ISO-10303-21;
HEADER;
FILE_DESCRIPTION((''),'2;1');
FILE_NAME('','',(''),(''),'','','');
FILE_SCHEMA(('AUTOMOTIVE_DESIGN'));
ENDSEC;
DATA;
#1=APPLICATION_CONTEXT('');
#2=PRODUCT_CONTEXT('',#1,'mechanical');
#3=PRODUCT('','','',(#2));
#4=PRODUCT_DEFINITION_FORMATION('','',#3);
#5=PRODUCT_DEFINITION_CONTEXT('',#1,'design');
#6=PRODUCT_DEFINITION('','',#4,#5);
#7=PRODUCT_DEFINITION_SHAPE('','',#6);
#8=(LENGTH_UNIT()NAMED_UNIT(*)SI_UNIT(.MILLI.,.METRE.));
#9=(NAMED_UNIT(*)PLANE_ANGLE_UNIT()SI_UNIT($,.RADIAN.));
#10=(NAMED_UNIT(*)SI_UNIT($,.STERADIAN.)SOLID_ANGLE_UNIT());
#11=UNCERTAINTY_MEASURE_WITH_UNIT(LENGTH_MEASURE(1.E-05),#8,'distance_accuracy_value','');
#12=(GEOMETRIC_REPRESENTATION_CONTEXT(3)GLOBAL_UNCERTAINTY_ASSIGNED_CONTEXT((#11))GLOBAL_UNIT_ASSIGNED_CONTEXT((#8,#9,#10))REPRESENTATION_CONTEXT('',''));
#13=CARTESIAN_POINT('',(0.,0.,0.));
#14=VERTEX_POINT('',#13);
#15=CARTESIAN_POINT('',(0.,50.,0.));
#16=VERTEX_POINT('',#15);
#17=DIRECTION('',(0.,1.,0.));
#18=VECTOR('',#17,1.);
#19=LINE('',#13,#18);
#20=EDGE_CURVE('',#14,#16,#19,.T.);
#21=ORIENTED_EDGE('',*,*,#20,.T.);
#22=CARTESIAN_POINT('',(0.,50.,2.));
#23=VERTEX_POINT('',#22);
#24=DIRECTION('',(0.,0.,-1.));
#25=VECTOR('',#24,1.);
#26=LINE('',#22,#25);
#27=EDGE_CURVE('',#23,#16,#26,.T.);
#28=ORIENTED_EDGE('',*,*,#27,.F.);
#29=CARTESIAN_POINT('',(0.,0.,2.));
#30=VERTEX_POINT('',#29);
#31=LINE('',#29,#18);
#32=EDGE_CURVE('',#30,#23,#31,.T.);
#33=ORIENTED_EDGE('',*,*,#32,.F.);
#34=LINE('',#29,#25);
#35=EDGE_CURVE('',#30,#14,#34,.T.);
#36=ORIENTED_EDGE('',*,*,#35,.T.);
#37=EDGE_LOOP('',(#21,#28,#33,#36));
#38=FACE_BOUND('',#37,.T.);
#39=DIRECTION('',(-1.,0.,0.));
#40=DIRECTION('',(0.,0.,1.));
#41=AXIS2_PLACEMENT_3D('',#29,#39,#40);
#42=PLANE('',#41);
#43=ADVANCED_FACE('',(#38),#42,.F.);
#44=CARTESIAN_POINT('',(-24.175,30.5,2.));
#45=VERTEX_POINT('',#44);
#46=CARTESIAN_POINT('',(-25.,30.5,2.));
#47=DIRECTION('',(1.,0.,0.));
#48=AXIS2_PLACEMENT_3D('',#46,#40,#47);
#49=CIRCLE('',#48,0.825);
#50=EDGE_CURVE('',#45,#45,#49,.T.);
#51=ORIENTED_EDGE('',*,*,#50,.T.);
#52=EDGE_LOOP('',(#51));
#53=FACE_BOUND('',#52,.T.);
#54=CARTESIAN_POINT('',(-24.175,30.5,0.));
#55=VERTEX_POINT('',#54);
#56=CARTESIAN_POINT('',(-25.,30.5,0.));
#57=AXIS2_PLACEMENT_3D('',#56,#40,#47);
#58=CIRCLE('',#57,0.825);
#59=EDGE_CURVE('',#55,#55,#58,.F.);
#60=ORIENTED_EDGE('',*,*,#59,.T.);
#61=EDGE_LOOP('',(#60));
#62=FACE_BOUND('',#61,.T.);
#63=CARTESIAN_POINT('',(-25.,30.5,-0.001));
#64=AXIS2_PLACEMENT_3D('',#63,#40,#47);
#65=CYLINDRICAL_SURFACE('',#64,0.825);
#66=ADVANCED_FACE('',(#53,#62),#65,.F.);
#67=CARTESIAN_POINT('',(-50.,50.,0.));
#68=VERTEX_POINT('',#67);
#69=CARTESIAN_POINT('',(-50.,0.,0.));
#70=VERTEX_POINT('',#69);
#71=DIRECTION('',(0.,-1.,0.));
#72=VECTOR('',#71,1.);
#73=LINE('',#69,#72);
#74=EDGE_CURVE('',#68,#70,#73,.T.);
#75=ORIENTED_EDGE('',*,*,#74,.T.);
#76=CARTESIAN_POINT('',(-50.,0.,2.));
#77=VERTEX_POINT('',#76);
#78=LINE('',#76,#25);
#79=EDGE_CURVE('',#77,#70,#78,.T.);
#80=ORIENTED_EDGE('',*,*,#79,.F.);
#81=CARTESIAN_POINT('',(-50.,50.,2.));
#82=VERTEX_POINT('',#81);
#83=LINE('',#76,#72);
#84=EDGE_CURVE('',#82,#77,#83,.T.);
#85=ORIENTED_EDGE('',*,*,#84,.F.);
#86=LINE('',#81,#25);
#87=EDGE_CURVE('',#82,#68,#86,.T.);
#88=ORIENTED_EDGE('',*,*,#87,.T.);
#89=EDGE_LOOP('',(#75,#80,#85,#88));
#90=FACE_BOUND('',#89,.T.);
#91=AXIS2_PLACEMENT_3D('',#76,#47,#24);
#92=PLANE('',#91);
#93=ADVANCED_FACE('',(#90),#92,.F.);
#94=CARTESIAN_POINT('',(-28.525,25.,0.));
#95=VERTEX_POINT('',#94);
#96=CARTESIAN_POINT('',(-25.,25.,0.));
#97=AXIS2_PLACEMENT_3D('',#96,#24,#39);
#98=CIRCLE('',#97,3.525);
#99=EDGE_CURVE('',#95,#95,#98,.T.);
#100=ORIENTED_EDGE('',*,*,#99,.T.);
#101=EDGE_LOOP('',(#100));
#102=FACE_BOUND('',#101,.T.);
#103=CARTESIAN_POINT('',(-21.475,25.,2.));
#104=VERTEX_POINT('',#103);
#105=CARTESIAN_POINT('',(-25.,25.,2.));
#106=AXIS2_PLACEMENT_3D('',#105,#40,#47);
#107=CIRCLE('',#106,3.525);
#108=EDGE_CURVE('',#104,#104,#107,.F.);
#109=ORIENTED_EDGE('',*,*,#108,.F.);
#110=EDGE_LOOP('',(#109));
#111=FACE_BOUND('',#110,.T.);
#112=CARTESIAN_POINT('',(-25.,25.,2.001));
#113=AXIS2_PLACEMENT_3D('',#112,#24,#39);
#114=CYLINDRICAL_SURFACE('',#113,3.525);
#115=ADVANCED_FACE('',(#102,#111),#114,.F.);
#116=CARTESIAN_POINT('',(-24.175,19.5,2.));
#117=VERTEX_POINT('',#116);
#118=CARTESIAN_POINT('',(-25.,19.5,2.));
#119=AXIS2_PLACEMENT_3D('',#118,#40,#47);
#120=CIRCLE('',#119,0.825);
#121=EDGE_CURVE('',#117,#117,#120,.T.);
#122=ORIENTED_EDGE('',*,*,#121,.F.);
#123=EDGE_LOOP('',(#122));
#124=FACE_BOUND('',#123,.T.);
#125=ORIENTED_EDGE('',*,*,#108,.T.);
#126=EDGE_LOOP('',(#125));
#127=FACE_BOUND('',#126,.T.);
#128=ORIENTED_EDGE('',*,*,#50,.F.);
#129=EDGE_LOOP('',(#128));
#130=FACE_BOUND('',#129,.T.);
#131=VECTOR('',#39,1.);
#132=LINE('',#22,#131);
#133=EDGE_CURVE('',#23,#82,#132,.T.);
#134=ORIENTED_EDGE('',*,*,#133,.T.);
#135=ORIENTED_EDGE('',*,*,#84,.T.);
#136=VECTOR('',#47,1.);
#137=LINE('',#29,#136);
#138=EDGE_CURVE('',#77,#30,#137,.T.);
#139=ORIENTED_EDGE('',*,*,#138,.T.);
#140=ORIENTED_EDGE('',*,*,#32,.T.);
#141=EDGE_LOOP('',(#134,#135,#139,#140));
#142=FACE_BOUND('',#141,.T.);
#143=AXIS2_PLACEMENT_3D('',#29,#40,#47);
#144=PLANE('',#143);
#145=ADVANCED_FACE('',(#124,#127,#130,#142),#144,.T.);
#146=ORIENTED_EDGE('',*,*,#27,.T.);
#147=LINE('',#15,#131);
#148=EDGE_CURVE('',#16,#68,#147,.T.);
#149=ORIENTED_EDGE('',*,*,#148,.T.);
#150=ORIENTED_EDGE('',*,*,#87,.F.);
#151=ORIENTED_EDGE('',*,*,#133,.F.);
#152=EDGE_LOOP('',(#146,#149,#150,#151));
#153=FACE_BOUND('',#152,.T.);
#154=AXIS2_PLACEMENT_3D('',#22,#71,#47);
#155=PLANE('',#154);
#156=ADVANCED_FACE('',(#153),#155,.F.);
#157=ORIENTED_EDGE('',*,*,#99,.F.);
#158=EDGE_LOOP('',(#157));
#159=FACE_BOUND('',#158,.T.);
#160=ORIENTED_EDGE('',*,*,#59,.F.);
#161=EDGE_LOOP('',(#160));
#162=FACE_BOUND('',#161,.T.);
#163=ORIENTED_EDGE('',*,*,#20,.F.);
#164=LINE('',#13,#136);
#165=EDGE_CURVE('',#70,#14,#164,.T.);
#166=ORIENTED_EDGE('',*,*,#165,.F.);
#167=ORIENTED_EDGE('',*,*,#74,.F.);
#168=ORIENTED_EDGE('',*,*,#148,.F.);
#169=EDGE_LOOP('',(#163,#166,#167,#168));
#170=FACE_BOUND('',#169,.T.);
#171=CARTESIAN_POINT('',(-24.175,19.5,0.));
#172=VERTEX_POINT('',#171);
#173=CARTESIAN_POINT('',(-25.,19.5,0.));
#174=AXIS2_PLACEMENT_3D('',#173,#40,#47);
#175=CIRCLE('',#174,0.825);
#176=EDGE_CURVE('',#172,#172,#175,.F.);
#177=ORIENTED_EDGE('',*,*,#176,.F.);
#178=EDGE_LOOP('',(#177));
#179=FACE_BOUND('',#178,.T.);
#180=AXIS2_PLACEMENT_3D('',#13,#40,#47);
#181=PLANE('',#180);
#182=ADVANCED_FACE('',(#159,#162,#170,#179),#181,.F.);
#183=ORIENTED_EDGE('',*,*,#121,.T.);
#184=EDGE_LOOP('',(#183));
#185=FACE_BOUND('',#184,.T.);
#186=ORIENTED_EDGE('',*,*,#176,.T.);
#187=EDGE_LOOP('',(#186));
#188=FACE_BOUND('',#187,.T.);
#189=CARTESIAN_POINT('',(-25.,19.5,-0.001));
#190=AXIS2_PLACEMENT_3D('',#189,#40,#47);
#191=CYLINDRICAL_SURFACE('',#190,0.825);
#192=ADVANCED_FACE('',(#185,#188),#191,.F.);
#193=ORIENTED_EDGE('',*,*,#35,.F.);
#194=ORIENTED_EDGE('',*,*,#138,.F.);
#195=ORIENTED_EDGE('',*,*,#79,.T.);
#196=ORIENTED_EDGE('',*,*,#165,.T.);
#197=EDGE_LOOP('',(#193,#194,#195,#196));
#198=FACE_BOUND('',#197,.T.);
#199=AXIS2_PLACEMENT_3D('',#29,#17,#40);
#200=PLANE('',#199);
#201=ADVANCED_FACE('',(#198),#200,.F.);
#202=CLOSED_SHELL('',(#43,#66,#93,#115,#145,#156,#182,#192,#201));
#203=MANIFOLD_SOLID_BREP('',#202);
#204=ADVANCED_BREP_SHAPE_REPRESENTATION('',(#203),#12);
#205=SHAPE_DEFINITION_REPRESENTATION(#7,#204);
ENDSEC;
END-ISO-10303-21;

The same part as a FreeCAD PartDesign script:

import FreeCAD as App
import Part
import Sketcher

V = App.Vector


def add_polygon(sketch, points):
    """Adds a closed chain of lines whose ends are joined by coincident constraints."""
    first, n = sketch.GeometryCount, len(points)
    for a, b in zip(points, points[1:] + points[:1]):
        sketch.addGeometry(Part.LineSegment(App.Vector(*a, 0), App.Vector(*b, 0)), False)
    for i in range(n):
        sketch.addConstraint(Sketcher.Constraint("Coincident", first + i, 2, first + (i + 1) % n, 1))

doc = App.newDocument("Part")
body = doc.addObject("PartDesign::Body", "Body")

sketch1 = body.newObject("Sketcher::SketchObject", "Sketch")
sketch1.AttachmentSupport = (doc.getObject("XY_Plane"), [""])
sketch1.MapMode = "FlatFace"
add_polygon(sketch1, [(-50, 50), (-50, 0), (0, 0), (0, 50)])
sketch1.addConstraint(Sketcher.Constraint("Vertical", 0))
sketch1.addConstraint(Sketcher.Constraint("Horizontal", 1))
sketch1.addConstraint(Sketcher.Constraint("Vertical", 2))
sketch1.addConstraint(Sketcher.Constraint("Horizontal", 3))
sketch1.addConstraint(Sketcher.Constraint("Coincident", 1, 2, -1, 1))
sketch1.addConstraint(Sketcher.Constraint("Equal", 3, 0))
sketch1.addConstraint(Sketcher.Constraint("DistanceX", 1, 1, 1, 2, 50.0))
pad1 = body.newObject("PartDesign::Pad", "Pad")
pad1.Profile = sketch1
pad1.Length = 2

sketch2 = body.newObject("Sketcher::SketchObject", "Sketch001")
sketch2.AttachmentSupport = (doc.getObject("XY_Plane"), [""])
sketch2.MapMode = "FlatFace"
sketch2.AttachmentOffset = App.Placement(V(0, 0, 2), App.Rotation())
sketch2.addGeometry(Part.Circle(V(-25, 30.5, 0), V(0, 0, 1), 0.8), False)
sketch2.addConstraint(Sketcher.Constraint("Diameter", 0, 1.65))
sketch2.addConstraint(Sketcher.Constraint("DistanceX", 0, 3, -1, 1, 25.0))
sketch2.addConstraint(Sketcher.Constraint("DistanceY", -1, 1, 0, 3, 30.5))
pocket1 = body.newObject("PartDesign::Pocket", "Pocket")
pocket1.Profile = sketch2
pocket1.Type = "UpToFirst"

sketch3 = body.newObject("Sketcher::SketchObject", "Sketch002")
sketch3.AttachmentSupport = (doc.getObject("XY_Plane"), [""])
sketch3.MapMode = "FlatFace"
sketch3.AttachmentOffset = App.Placement(V(0, 0, 2), App.Rotation())
sketch3.addGeometry(Part.Circle(V(-25, 19.5, 0), V(0, 0, 1), 0.8), False)
sketch3.addConstraint(Sketcher.Constraint("Diameter", 0, 1.65))
sketch3.addConstraint(Sketcher.Constraint("DistanceX", 0, 3, -1, 1, 25.0))
sketch3.addConstraint(Sketcher.Constraint("DistanceY", -1, 1, 0, 3, 19.5))
pocket2 = body.newObject("PartDesign::Pocket", "Pocket001")
pocket2.Profile = sketch3
pocket2.Type = "UpToFirst"

sketch4 = body.newObject("Sketcher::SketchObject", "Sketch003")
sketch4.AttachmentSupport = (doc.getObject("XY_Plane"), [""])
sketch4.MapMode = "FlatFace"
sketch4.addGeometry(Part.Circle(V(-25, 25, 0), V(0, 0, 1), 3.5), False)
sketch4.addConstraint(Sketcher.Constraint("Diameter", 0, 7.05))
sketch4.addConstraint(Sketcher.Constraint("DistanceX", 0, 3, -1, 1, 25.0))
sketch4.addConstraint(Sketcher.Constraint("DistanceY", -1, 1, 0, 3, 25.0))
pocket3 = body.newObject("PartDesign::Pocket", "Pocket002")
pocket3.Profile = sketch4
pocket3.Type = "UpToFirst"
pocket3.Reversed = True

doc.recompute()
